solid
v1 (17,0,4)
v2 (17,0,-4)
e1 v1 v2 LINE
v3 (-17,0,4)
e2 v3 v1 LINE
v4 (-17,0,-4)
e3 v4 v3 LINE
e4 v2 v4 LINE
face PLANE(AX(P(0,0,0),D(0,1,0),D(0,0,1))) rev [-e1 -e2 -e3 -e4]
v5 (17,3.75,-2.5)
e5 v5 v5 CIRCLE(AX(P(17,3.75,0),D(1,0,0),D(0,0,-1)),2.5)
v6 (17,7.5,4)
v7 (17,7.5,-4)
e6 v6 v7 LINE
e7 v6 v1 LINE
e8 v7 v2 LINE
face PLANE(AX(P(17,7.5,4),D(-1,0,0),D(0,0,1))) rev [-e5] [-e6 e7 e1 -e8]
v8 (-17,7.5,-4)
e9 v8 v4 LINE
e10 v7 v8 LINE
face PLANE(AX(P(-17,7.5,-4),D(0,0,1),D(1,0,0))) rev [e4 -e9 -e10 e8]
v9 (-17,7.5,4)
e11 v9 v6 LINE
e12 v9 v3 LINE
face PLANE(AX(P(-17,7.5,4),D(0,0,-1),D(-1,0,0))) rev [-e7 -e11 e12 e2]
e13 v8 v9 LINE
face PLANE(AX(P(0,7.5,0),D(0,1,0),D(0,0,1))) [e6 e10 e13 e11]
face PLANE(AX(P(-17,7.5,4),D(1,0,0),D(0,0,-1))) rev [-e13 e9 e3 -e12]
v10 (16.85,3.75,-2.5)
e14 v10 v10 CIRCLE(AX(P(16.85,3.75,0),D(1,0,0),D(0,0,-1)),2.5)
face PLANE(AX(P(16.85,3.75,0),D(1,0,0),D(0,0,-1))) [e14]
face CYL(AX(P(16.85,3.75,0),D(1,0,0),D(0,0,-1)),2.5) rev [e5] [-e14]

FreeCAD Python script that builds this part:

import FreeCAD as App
import Part
import Sketcher


def add_polygon(sketch, points):
    """Adds a closed chain of lines whose ends are joined by coincident constraints."""
    first, n = sketch.GeometryCount, len(points)
    for a, b in zip(points, points[1:] + points[:1]):
        sketch.addGeometry(Part.LineSegment(App.Vector(*a, 0), App.Vector(*b, 0)), False)
    for i in range(n):
        sketch.addConstraint(Sketcher.Constraint("Coincident", first + i, 2, first + (i + 1) % n, 1))

doc = App.newDocument("Part")
body = doc.addObject("PartDesign::Body", "Body")

sketch1 = doc.addObject("Sketcher::SketchObject", "Sketch")
body.addObject(sketch1)
sketch1.AttachmentSupport = (doc.XZ_Plane, [""])
sketch1.MapMode = "FlatFace"
add_polygon(sketch1, [(-17, -4), (-17, 4), (17, 4), (17, -4)])
sketch1.addConstraint(Sketcher.Constraint("Vertical", 0))
sketch1.addConstraint(Sketcher.Constraint("Horizontal", 1))
sketch1.addConstraint(Sketcher.Constraint("Vertical", 2))
sketch1.addConstraint(Sketcher.Constraint("Horizontal", 3))
sketch1.addConstraint(Sketcher.Constraint("Symmetric", 0, 2, 2, 2, -1, 1))
sketch1.addConstraint(Sketcher.Constraint("DistanceX", 1, 1, 1, 2, 34.0))
sketch1.addConstraint(Sketcher.Constraint("DistanceY", 0, 1, 0, 2, 8.0))
pad1 = doc.addObject("PartDesign::Pad", "Pad")
body.addObject(pad1)
pad1.Profile = sketch1
pad1.Length = 7.5
pad1.Reversed = True

sketch2 = doc.addObject("Sketcher::SketchObject", "Sketch001")
body.addObject(sketch2)
sketch2.AttachmentSupport = (doc.YZ_Plane, [""])
sketch2.MapMode = "FlatFace"
sketch2.AttachmentOffset = App.Placement(App.Vector(0, 0, 17), App.Rotation())
sketch2.addGeometry(Part.Circle(App.Vector(3.8, 0, 0), App.Vector(0, 0, 1), 2.5), False)
sketch2.addConstraint(Sketcher.Constraint("PointOnObject", 0, 3, -1))
sketch2.addConstraint(Sketcher.Constraint("Diameter", 0, 5.0))
sketch2.addConstraint(Sketcher.Constraint("DistanceX", -1, 1, 0, 3, 3.75))
pocket1 = doc.addObject("PartDesign::Pocket", "Pocket")
body.addObject(pocket1)
pocket1.Profile = sketch2
pocket1.Length = 0.15

doc.recompute()
